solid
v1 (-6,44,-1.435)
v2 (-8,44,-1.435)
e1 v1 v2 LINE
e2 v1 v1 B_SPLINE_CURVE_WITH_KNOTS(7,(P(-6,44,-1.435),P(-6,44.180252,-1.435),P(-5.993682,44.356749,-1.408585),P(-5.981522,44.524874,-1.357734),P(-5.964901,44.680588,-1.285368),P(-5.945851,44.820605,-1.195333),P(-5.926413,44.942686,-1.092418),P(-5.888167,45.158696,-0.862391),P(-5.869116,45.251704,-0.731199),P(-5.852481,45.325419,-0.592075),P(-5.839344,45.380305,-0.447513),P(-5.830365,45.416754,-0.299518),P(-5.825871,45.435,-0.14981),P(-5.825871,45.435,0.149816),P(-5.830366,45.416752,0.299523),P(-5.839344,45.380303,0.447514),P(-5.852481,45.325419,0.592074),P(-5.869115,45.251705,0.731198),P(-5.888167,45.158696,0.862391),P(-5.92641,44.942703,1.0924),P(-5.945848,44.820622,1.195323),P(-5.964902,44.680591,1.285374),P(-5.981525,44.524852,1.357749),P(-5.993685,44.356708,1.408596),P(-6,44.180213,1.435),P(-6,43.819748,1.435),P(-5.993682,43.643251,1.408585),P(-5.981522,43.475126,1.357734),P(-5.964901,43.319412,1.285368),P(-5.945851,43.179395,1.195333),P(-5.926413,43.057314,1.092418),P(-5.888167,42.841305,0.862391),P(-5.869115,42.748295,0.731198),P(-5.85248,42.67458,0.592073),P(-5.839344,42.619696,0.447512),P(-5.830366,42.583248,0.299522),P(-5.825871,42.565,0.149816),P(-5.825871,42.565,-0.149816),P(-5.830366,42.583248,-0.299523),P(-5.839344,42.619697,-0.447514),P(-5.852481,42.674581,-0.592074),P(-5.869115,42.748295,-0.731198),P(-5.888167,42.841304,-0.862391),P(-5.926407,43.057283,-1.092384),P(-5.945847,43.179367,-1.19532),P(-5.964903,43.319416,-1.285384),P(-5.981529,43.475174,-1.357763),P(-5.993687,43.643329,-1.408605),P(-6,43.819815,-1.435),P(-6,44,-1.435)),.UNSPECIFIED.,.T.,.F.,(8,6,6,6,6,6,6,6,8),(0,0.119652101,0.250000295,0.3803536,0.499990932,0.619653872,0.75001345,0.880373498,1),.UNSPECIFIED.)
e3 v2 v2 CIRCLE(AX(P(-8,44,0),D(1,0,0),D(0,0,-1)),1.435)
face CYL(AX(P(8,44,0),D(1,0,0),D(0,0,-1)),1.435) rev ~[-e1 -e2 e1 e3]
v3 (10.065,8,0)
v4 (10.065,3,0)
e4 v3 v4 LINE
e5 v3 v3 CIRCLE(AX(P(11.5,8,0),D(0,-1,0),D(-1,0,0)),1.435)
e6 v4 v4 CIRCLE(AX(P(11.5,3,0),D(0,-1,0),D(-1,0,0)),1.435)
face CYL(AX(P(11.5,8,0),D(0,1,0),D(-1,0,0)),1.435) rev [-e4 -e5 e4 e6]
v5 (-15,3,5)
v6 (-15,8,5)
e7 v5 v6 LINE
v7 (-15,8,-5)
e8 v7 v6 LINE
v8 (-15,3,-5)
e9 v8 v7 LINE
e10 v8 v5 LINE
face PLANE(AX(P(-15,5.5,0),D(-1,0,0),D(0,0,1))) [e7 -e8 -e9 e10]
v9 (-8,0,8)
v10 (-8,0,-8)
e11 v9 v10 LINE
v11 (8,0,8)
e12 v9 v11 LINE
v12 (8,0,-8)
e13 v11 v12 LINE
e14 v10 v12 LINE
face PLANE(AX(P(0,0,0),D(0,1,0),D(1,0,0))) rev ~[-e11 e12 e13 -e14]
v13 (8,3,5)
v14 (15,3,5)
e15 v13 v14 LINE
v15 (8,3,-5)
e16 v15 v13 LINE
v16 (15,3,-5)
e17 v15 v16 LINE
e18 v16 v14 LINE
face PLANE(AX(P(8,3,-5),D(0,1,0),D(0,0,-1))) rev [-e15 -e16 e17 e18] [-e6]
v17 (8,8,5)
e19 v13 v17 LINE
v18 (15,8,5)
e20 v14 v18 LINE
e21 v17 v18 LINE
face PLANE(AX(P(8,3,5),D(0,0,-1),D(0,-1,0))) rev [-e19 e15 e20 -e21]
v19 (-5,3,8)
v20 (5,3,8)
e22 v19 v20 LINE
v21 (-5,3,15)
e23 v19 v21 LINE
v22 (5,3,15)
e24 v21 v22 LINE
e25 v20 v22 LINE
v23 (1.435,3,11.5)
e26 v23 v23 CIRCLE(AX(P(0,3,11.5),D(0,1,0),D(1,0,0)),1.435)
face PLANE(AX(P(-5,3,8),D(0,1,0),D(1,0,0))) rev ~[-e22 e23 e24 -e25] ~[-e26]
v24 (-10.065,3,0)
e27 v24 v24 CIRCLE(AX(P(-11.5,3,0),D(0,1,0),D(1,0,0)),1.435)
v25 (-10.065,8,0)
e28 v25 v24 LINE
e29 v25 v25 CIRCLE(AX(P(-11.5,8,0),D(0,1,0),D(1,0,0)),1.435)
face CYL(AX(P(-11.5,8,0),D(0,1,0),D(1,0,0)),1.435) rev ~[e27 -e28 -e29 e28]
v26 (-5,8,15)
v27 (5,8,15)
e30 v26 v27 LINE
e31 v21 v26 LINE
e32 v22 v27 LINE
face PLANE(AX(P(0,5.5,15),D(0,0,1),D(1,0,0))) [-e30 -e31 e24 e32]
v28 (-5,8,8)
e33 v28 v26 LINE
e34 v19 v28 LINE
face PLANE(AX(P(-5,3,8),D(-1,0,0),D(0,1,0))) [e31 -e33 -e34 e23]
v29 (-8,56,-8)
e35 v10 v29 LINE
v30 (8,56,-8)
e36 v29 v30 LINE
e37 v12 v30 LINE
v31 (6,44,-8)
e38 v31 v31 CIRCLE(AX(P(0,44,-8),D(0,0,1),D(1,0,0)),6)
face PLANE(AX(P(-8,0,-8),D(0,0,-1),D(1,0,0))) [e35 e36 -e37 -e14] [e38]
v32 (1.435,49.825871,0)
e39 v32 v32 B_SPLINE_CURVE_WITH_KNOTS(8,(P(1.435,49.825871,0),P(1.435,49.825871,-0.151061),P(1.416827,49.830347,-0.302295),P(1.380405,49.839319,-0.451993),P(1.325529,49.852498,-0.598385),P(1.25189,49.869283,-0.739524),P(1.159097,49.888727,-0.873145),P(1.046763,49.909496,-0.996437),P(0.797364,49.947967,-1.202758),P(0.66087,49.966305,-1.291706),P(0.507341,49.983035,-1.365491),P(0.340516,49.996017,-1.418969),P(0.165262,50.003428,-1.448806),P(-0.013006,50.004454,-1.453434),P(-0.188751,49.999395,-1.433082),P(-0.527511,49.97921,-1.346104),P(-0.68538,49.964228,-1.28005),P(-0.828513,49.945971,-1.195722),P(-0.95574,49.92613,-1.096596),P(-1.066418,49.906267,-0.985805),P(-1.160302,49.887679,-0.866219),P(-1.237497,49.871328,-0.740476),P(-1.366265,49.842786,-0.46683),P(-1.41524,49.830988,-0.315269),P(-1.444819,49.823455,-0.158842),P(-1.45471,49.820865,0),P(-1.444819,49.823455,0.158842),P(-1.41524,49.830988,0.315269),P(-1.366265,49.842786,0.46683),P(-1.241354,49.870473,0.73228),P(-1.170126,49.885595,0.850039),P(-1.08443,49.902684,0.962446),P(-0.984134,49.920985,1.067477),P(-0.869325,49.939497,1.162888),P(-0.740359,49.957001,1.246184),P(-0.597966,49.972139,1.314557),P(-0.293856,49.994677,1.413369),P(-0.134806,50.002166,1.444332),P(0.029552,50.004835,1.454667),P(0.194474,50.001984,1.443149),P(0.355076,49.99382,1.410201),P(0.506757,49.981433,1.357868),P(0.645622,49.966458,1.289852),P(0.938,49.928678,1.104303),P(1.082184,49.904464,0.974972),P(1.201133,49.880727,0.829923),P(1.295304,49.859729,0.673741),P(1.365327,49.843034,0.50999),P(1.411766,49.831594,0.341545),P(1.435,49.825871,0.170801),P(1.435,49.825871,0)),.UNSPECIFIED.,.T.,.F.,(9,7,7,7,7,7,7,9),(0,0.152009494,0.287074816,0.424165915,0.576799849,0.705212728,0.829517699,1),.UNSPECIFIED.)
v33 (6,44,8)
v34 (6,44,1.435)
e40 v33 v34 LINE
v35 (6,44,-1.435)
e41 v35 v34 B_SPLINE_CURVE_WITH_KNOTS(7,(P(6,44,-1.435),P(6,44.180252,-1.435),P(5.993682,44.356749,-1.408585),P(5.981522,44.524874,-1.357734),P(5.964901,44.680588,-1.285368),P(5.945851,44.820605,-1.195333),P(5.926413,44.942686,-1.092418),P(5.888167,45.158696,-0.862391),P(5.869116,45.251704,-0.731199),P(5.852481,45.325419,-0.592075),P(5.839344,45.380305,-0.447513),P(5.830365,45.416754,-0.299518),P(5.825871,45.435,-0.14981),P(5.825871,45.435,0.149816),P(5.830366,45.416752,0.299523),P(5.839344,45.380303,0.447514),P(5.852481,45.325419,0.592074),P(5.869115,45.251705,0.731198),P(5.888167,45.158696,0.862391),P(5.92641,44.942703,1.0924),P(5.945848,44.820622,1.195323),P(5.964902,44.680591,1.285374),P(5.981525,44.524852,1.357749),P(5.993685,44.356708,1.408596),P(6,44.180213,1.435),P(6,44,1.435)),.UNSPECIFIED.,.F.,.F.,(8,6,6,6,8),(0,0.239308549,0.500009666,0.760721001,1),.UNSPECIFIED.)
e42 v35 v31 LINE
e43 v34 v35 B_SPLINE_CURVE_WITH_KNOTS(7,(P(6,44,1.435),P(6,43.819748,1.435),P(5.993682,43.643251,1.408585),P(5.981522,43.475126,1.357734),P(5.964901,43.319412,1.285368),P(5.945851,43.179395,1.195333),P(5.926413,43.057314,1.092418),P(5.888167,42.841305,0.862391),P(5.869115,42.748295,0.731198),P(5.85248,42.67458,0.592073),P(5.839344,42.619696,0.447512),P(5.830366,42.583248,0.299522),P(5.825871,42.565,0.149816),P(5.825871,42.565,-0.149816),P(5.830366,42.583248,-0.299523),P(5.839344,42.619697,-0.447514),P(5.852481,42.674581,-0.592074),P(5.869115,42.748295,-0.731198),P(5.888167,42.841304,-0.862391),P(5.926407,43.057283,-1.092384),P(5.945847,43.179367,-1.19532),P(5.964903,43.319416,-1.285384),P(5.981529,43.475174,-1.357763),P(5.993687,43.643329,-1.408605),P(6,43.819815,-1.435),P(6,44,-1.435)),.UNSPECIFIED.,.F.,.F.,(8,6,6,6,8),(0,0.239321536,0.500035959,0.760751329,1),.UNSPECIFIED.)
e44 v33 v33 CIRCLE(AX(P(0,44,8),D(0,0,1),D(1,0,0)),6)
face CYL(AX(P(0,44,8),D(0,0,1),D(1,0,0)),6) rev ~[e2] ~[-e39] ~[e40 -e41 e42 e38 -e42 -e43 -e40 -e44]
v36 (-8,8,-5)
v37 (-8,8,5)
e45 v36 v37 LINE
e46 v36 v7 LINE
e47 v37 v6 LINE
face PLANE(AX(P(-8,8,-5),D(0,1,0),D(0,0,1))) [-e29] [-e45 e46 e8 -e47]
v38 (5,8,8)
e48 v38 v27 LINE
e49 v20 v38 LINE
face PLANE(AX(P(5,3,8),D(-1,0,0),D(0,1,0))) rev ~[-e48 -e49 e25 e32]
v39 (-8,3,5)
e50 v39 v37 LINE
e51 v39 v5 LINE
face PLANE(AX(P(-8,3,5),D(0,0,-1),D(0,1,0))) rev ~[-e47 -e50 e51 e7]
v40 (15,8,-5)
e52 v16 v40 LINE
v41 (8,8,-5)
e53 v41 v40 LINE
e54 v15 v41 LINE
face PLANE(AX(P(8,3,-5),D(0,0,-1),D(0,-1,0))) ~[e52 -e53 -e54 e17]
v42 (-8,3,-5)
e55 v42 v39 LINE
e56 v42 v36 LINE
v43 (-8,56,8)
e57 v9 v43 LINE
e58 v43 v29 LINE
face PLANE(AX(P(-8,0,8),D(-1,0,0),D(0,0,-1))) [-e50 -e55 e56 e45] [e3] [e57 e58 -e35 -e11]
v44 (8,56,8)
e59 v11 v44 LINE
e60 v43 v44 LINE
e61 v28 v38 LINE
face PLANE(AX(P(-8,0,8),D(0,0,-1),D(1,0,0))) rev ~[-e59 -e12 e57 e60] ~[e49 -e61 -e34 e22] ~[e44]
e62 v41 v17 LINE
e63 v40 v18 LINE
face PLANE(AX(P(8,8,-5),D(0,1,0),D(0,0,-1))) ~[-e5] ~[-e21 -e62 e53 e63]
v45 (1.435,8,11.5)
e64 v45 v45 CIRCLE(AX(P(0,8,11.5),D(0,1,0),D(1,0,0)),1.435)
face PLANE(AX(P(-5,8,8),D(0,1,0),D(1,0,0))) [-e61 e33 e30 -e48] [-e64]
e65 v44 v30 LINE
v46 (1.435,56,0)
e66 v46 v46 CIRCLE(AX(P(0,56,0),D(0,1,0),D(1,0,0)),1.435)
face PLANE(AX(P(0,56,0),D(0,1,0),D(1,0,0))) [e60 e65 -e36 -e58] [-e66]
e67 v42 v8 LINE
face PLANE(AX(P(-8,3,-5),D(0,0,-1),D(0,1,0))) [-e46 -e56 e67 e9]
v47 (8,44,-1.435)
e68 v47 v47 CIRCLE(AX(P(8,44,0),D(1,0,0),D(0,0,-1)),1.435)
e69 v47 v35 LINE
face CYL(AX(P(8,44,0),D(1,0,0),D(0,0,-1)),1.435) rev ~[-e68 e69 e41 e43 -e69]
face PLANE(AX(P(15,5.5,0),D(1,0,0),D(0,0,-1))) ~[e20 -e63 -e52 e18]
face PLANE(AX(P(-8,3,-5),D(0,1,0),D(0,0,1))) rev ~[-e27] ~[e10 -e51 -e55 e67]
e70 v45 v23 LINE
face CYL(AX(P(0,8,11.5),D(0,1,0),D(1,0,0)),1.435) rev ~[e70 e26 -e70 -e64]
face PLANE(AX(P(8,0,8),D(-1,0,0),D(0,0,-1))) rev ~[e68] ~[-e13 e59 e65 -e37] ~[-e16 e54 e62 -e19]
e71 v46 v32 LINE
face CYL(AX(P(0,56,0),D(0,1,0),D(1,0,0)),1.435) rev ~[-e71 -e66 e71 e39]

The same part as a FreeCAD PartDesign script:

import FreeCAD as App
import Part
import Sketcher


def add_polygon(sketch, points):
    """Adds a closed chain of lines whose ends are joined by coincident constraints."""
    first, n = sketch.GeometryCount, len(points)
    for a, b in zip(points, points[1:] + points[:1]):
        sketch.addGeometry(Part.LineSegment(App.Vector(*a, 0), App.Vector(*b, 0)), False)
    for i in range(n):
        sketch.addConstraint(Sketcher.Constraint("Coincident", first + i, 2, first + (i + 1) % n, 1))

doc = App.newDocument("Part")
params = doc.addObject("Spreadsheet::Sheet", "Params")
for row, (alias, value) in enumerate([
    ("sketch1_width", "16 mm"),
    ("pad1_length", "56 mm"),
    ("sketch2_diameter", "12 mm"),
    ("sketch3_diameter", "2.87 mm"),
    ("pocket2_length", "16 mm"),
    ("sketch4_diameter", "2.87 mm"),
    ("sketch5_width", "5 mm"),
    ("sketch5_height", "10 mm"),
    ("pad2_length", "7 mm"),
    ("sketch6_diameter", "2.87 mm"),
    ("pocket4_length", "5 mm"),
    ("sketch7_width", "10 mm"),
    ("sketch7_height", "5 mm"),
    ("pad3_length", "7 mm"),
    ("sketch8_diameter", "2.87 mm"),
], start=1):
    params.set(f"A{row}", alias)
    params.set(f"B{row}", "=" + value)
    params.setAlias(f"B{row}", alias)

body = doc.addObject("PartDesign::Body", "Body")

sketch1 = body.newObject("Sketcher::SketchObject", "Sketch")
sketch1.AttachmentSupport = (doc.getObject("XZ_Plane"), [""])
sketch1.MapMode = "FlatFace"
add_polygon(sketch1, [(-8, -8), (-8, 8), (8, 8), (8, -8)])
sketch1.addConstraint(Sketcher.Constraint("Vertical", 0))
sketch1.addConstraint(Sketcher.Constraint("Horizontal", 1))
sketch1.addConstraint(Sketcher.Constraint("Vertical", 2))
sketch1.addConstraint(Sketcher.Constraint("Horizontal", 3))
sketch1.addConstraint(Sketcher.Constraint("Symmetric", 0, 2, 2, 2, -1, 1))
sketch1.addConstraint(Sketcher.Constraint("Equal", 3, 0))
sketch1.addConstraint(Sketcher.Constraint("DistanceX", 1, 1, 1, 2, 16.0))
sketch1.setExpression("Constraints[10]", "Params.sketch1_width")
pad1 = body.newObject("PartDesign::Pad", "Pad")
pad1.Profile = sketch1
pad1.setExpression("Length", "Params.pad1_length")
pad1.Reversed = True

sketch2 = body.newObject("Sketcher::SketchObject", "Sketch001")
sketch2.AttachmentSupport = (doc.getObject("XY_Plane"), [""])
sketch2.MapMode = "FlatFace"
sketch2.AttachmentOffset = App.Placement(App.Vector(0, 0, 8), App.Rotation())
sketch2.addGeometry(Part.Circle(App.Vector(0, 44, 0), App.Vector(0, 0, 1), 6), False)
sketch2.addConstraint(Sketcher.Constraint("PointOnObject", 0, 3, -2))
sketch2.addConstraint(Sketcher.Constraint("Diameter", 0, 12.0))
sketch2.addConstraint(Sketcher.Constraint("DistanceY", -1, 1, 0, 3, 44.0))
sketch2.setExpression("Constraints[1]", "Params.sketch2_diameter")
pocket1 = body.newObject("PartDesign::Pocket", "Pocket")
pocket1.Profile = sketch2
pocket1.Type = "UpToFirst"

sketch3 = body.newObject("Sketcher::SketchObject", "Sketch002")
sketch3.AttachmentSupport = (doc.getObject("YZ_Plane"), [""])
sketch3.MapMode = "FlatFace"
sketch3.AttachmentOffset = App.Placement(App.Vector(0, 0, 8), App.Rotation())
sketch3.addGeometry(Part.Circle(App.Vector(44, 0, 0), App.Vector(0, 0, 1), 1.4), False)
sketch3.addConstraint(Sketcher.Constraint("PointOnObject", 0, 3, -1))
sketch3.addConstraint(Sketcher.Constraint("Diameter", 0, 2.87))
sketch3.addConstraint(Sketcher.Constraint("DistanceX", -1, 1, 0, 3, 44.0))
sketch3.setExpression("Constraints[1]", "Params.sketch3_diameter")
pocket2 = body.newObject("PartDesign::Pocket", "Pocket001")
pocket2.Profile = sketch3
pocket2.setExpression("Length", "Params.pocket2_length")

sketch4 = body.newObject("Sketcher::SketchObject", "Sketch003")
sketch4.AttachmentSupport = (doc.getObject("XZ_Plane"), [""])
sketch4.MapMode = "FlatFace"
sketch4.AttachmentOffset = App.Placement(App.Vector(0, 0, -56), App.Rotation())
sketch4.addGeometry(Part.Circle(App.Vector(0, 0, 0), App.Vector(0, 0, 1), 1.4), False)
sketch4.addConstraint(Sketcher.Constraint("Coincident", 0, 3, -1, 1))
sketch4.addConstraint(Sketcher.Constraint("Diameter", 0, 2.87))
sketch4.setExpression("Constraints[1]", "Params.sketch4_diameter")
pocket3 = body.newObject("PartDesign::Pocket", "Pocket002")
pocket3.Profile = sketch4
pocket3.Type = "UpToFirst"
pocket3.Reversed = True

sketch5 = body.newObject("Sketcher::SketchObject", "Sketch004")
sketch5.AttachmentSupport = (doc.getObject("YZ_Plane"), [""])
sketch5.MapMode = "FlatFace"
sketch5.AttachmentOffset = App.Placement(App.Vector(0, 0, -8), App.Rotation())
add_polygon(sketch5, [(8, -5), (3, -5), (3, 5), (8, 5)])
sketch5.addConstraint(Sketcher.Constraint("Horizontal", 0))
sketch5.addConstraint(Sketcher.Constraint("Vertical", 1))
sketch5.addConstraint(Sketcher.Constraint("Horizontal", 2))
sketch5.addConstraint(Sketcher.Constraint("Vertical", 3))
sketch5.addConstraint(Sketcher.Constraint("DistanceX", 0, 2, 0, 1, 5.0))
sketch5.addConstraint(Sketcher.Constraint("DistanceY", 1, 1, 1, 2, 10.0))
sketch5.addConstraint(Sketcher.Constraint("DistanceX", -1, 1, 0, 2, 3.0))
sketch5.addConstraint(Sketcher.Constraint("DistanceY", 0, 2, -1, 1, 5.0))
sketch5.setExpression("Constraints[8]", "Params.sketch5_width")
sketch5.setExpression("Constraints[9]", "Params.sketch5_height")
pad2 = body.newObject("PartDesign::Pad", "Pad001")
pad2.Profile = sketch5
pad2.setExpression("Length", "Params.pad2_length")
pad2.Reversed = True

sketch6 = body.newObject("Sketcher::SketchObject", "Sketch005")
sketch6.AttachmentSupport = (doc.getObject("XZ_Plane"), [""])
sketch6.MapMode = "FlatFace"
sketch6.AttachmentOffset = App.Placement(App.Vector(0, 0, -8), App.Rotation())
sketch6.addGeometry(Part.Circle(App.Vector(-11.5, 0, 0), App.Vector(0, 0, 1), 1.4), False)
sketch6.addConstraint(Sketcher.Constraint("PointOnObject", 0, 3, -1))
sketch6.addConstraint(Sketcher.Constraint("Diameter", 0, 2.87))
sketch6.addConstraint(Sketcher.Constraint("DistanceX", 0, 3, -1, 1, 11.5))
sketch6.setExpression("Constraints[1]", "Params.sketch6_diameter")
pocket4 = body.newObject("PartDesign::Pocket", "Pocket003")
pocket4.Profile = sketch6
pocket4.setExpression("Length", "Params.pocket4_length")
pocket4.Reversed = True
doc.recompute()

mirrored = body.newObject("PartDesign::Mirrored", "Mirrored")
mirrored.Originals = [pad2, pocket4]
mirrored.MirrorPlane = (doc.getObject("YZ_Plane"), [""])
body.Tip = mirrored

sketch7 = body.newObject("Sketcher::SketchObject", "Sketch006")
sketch7.AttachmentSupport = (doc.getObject("XY_Plane"), [""])
sketch7.MapMode = "FlatFace"
sketch7.AttachmentOffset = App.Placement(App.Vector(0, 0, 8), App.Rotation())
add_polygon(sketch7, [(-5, 8), (-5, 3), (5, 3), (5, 8)])
sketch7.addConstraint(Sketcher.Constraint("Vertical", 0))
sketch7.addConstraint(Sketcher.Constraint("Horizontal", 1))
sketch7.addConstraint(Sketcher.Constraint("Vertical", 2))
sketch7.addConstraint(Sketcher.Constraint("Horizontal", 3))
sketch7.addConstraint(Sketcher.Constraint("DistanceX", 1, 1, 1, 2, 10.0))
sketch7.addConstraint(Sketcher.Constraint("DistanceY", 0, 2, 0, 1, 5.0))
sketch7.addConstraint(Sketcher.Constraint("DistanceX", 0, 2, -1, 1, 5.0))
sketch7.addConstraint(Sketcher.Constraint("DistanceY", -1, 1, 0, 2, 3.0))
sketch7.setExpression("Constraints[8]", "Params.sketch7_width")
sketch7.setExpression("Constraints[9]", "Params.sketch7_height")
pad3 = body.newObject("PartDesign::Pad", "Pad002")
pad3.Profile = sketch7
pad3.setExpression("Length", "Params.pad3_length")

sketch8 = body.newObject("Sketcher::SketchObject", "Sketch007")
sketch8.AttachmentSupport = (doc.getObject("XZ_Plane"), [""])
sketch8.MapMode = "FlatFace"
sketch8.AttachmentOffset = App.Placement(App.Vector(0, 0, -8), App.Rotation())
sketch8.addGeometry(Part.Circle(App.Vector(0, 11.5, 0), App.Vector(0, 0, 1), 1.4), False)
sketch8.addConstraint(Sketcher.Constraint("PointOnObject", 0, 3, -2))
sketch8.addConstraint(Sketcher.Constraint("Diameter", 0, 2.87))
sketch8.addConstraint(Sketcher.Constraint("DistanceY", -1, 1, 0, 3, 11.5))
sketch8.setExpression("Constraints[1]", "Params.sketch8_diameter")
pocket5 = body.newObject("PartDesign::Pocket", "Pocket004")
pocket5.Profile = sketch8
pocket5.Type = "UpToFirst"
pocket5.Reversed = True

doc.recompute()
